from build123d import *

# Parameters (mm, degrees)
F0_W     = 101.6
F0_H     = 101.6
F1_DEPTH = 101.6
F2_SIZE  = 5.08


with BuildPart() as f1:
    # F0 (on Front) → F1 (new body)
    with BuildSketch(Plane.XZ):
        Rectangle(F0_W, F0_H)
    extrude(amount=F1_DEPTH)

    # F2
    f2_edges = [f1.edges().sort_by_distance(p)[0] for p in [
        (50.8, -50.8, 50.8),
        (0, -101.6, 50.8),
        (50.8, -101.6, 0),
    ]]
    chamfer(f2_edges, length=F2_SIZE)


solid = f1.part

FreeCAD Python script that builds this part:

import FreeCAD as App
import Part
import Sketcher

V = App.Vector
Q = App.Units.Quantity


def edges_at(feature, points):
    """Names of the edges that pass closest to the given points."""
    edges = feature.Shape.Edges
    near = lambda p: min(range(len(edges)), key=lambda i: edges[i].distToShape(Part.Vertex(*p))[0])
    return sorted({f"Edge{near(p) + 1}" for p in points})


def add_polygon(sketch, points):
    """Adds a closed chain of lines whose ends are joined by coincident constraints."""
    first, n = sketch.GeometryCount, len(points)
    for a, b in zip(points, points[1:] + points[:1]):
        sketch.addGeometry(Part.LineSegment(App.Vector(*a, 0), App.Vector(*b, 0)), False)
    for i in range(n):
        sketch.addConstraint(Sketcher.Constraint("Coincident", first + i, 2, first + (i + 1) % n, 1))

doc = App.newDocument("Part")
body = doc.addObject("PartDesign::Body", "Body")

# Sketch on XZ plane
sketch1 = body.newObject("Sketcher::SketchObject", "Sketch")
sketch1.AttachmentSupport = (doc.getObject("XZ_Plane"), [""])
sketch1.MapMode = "FlatFace"
add_polygon(sketch1, [(-51, 51), (-51, -51), (51, -51), (51, 51)])  # lines 0-3
sketch1.addConstraint(Sketcher.Constraint("Vertical", 0))
sketch1.addConstraint(Sketcher.Constraint("Horizontal", 1))
sketch1.addConstraint(Sketcher.Constraint("Vertical", 2))
sketch1.addConstraint(Sketcher.Constraint("Horizontal", 3))
sketch1.addConstraint(Sketcher.Constraint("Symmetric", 0, 2, 2, 2, -1, 1))
sketch1.addConstraint(Sketcher.Constraint("Equal", 3, 0))
sketch1.addConstraint(Sketcher.Constraint("DistanceX", 1, 1, 1, 2, Q("4 in")))
pad1 = body.newObject("PartDesign::Pad", "Pad")
pad1.Profile = sketch1
pad1.Length = Q("4 in")
doc.recompute()

chamfer = body.newObject("PartDesign::Chamfer", "Chamfer")
chamfer.Base = (pad1, edges_at(pad1, [(50.8, -50.8, 50.8), (0, -101.6, 50.8), (50.8, -101.6, 0)]))
chamfer.Size = Q("0.2 in")

doc.recompute()
